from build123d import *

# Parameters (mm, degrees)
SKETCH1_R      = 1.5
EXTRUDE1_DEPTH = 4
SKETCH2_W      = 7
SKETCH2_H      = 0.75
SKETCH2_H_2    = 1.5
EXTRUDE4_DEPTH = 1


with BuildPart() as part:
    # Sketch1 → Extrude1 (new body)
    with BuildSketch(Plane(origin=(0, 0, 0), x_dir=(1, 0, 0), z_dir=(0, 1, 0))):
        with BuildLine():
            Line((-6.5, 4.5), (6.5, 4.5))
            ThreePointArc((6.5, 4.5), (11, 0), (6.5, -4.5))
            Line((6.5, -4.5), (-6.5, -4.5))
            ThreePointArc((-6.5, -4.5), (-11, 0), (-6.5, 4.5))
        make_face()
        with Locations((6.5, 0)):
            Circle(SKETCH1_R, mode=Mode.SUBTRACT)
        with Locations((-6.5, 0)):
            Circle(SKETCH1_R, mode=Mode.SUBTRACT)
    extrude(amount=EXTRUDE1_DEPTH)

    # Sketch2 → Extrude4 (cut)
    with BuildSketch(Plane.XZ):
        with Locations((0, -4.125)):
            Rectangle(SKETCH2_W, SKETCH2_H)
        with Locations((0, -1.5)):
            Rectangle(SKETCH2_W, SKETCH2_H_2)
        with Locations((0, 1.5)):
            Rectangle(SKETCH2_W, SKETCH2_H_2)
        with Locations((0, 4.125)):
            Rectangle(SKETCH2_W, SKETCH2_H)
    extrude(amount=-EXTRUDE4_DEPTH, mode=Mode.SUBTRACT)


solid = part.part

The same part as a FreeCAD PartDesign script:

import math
import FreeCAD as App
import Part
import Sketcher
from FreeCAD import Vector

doc = App.newDocument("Part")
body = doc.addObject("PartDesign::Body", "Body")

sketch1 = body.newObject("Sketcher::SketchObject", "Sketch")
sketch1.AttachmentSupport = (doc.getObject("XZ_Plane"), [""])
sketch1.MapMode = "FlatFace"
sketch1.addGeometry(Part.LineSegment(Vector(6.5, -4.5, 0), Vector(-6.5, -4.5, 0)), False)
sketch1.addGeometry(Part.ArcOfCircle(Part.Circle(Vector(-6.5, 0, 0), Vector(0, 0, 1), 4.5), math.radians(90), math.radians(270)), False)
sketch1.addGeometry(Part.LineSegment(Vector(-6.5, 4.5, 0), Vector(6.5, 4.5, 0)), False)
sketch1.addGeometry(Part.ArcOfCircle(Part.Circle(Vector(6.5, 0, 0), Vector(0, 0, 1), 4.5), math.radians(-90), math.radians(90)), False)
sketch1.addGeometry(Part.Circle(Vector(6.5, 0, 0), Vector(0, 0, 1), 1.5), False)
sketch1.addGeometry(Part.Circle(Vector(-6.5, 0, 0), Vector(0, 0, 1), 1.5), False)
sketch1.addConstraint(Sketcher.Constraint("Tangent", 0, 2, 1, 2))
sketch1.addConstraint(Sketcher.Constraint("Tangent", 1, 1, 2, 1))
sketch1.addConstraint(Sketcher.Constraint("Tangent", 2, 2, 3, 2))
sketch1.addConstraint(Sketcher.Constraint("Tangent", 3, 1, 0, 1))
sketch1.addConstraint(Sketcher.Constraint("Horizontal", 0))
sketch1.addConstraint(Sketcher.Constraint("Horizontal", 2))
sketch1.addConstraint(Sketcher.Constraint("Coincident", 4, 3, 3, 3))
sketch1.addConstraint(Sketcher.Constraint("Coincident", 5, 3, 1, 3))
sketch1.addConstraint(Sketcher.Constraint("Equal", 4, 5))
sketch1.addConstraint(Sketcher.Constraint("Symmetric", 1, 3, 3, 3, -1, 1))
sketch1.addConstraint(Sketcher.Constraint("Diameter", 4, 3.0))
sketch1.addConstraint(Sketcher.Constraint("Radius", 1, 4.5))
sketch1.addConstraint(Sketcher.Constraint("DistanceX", 0, 2, 0, 1, 13.0))
pad1 = body.newObject("PartDesign::Pad", "Pad")
pad1.Profile = sketch1
pad1.Length = 4
pad1.Reversed = True

sketch2 = body.newObject("Sketcher::SketchObject", "Sketch001")
sketch2.AttachmentSupport = (doc.getObject("XZ_Plane"), [""])
sketch2.MapMode = "FlatFace"
sketch2.addGeometry(Part.LineSegment(Vector(-3.5, -3.8, 0), Vector(-3.5, -4.5, 0)), False)
sketch2.addGeometry(Part.LineSegment(Vector(-3.5, -4.5, 0), Vector(3.5, -4.5, 0)), False)
sketch2.addGeometry(Part.LineSegment(Vector(3.5, -4.5, 0), Vector(3.5, -3.8, 0)), False)
sketch2.addGeometry(Part.LineSegment(Vector(3.5, -3.8, 0), Vector(-3.5, -3.8, 0)), False)
sketch2.addGeometry(Part.LineSegment(Vector(-3.5, -0.8, 0), Vector(-3.5, -2.2, 0)), False)
sketch2.addGeometry(Part.LineSegment(Vector(-3.5, -2.2, 0), Vector(3.5, -2.2, 0)), False)
sketch2.addGeometry(Part.LineSegment(Vector(3.5, -2.2, 0), Vector(3.5, -0.8, 0)), False)
sketch2.addGeometry(Part.LineSegment(Vector(3.5, -0.8, 0), Vector(-3.5, -0.8, 0)), False)
sketch2.addGeometry(Part.LineSegment(Vector(-3.5, 2.2, 0), Vector(-3.5, 0.8, 0)), False)
sketch2.addGeometry(Part.LineSegment(Vector(-3.5, 0.8, 0), Vector(3.5, 0.8, 0)), False)
sketch2.addGeometry(Part.LineSegment(Vector(3.5, 0.8, 0), Vector(3.5, 2.2, 0)), False)
sketch2.addGeometry(Part.LineSegment(Vector(3.5, 2.2, 0), Vector(-3.5, 2.2, 0)), False)
sketch2.addGeometry(Part.LineSegment(Vector(-3.5, 4.5, 0), Vector(-3.5, 3.8, 0)), False)
sketch2.addGeometry(Part.LineSegment(Vector(-3.5, 3.8, 0), Vector(3.5, 3.8, 0)), False)
sketch2.addGeometry(Part.LineSegment(Vector(3.5, 3.8, 0), Vector(3.5, 4.5, 0)), False)
sketch2.addGeometry(Part.LineSegment(Vector(3.5, 4.5, 0), Vector(-3.5, 4.5, 0)), False)
sketch2.addConstraint(Sketcher.Constraint("Coincident", 0, 2, 1, 1))
sketch2.addConstraint(Sketcher.Constraint("Coincident", 1, 2, 2, 1))
sketch2.addConstraint(Sketcher.Constraint("Coincident", 2, 2, 3, 1))
sketch2.addConstraint(Sketcher.Constraint("Coincident", 3, 2, 0, 1))
sketch2.addConstraint(Sketcher.Constraint("Coincident", 4, 2, 5, 1))
sketch2.addConstraint(Sketcher.Constraint("Coincident", 5, 2, 6, 1))
sketch2.addConstraint(Sketcher.Constraint("Coincident", 6, 2, 7, 1))
sketch2.addConstraint(Sketcher.Constraint("Coincident", 7, 2, 4, 1))
sketch2.addConstraint(Sketcher.Constraint("Coincident", 8, 2, 9, 1))
sketch2.addConstraint(Sketcher.Constraint("Coincident", 9, 2, 10, 1))
sketch2.addConstraint(Sketcher.Constraint("Coincident", 10, 2, 11, 1))
sketch2.addConstraint(Sketcher.Constraint("Coincident", 11, 2, 8, 1))
sketch2.addConstraint(Sketcher.Constraint("Coincident", 12, 2, 13, 1))
sketch2.addConstraint(Sketcher.Constraint("Coincident", 13, 2, 14, 1))
sketch2.addConstraint(Sketcher.Constraint("Coincident", 14, 2, 15, 1))
sketch2.addConstraint(Sketcher.Constraint("Coincident", 15, 2, 12, 1))
sketch2.addConstraint(Sketcher.Constraint("Vertical", 0))
sketch2.addConstraint(Sketcher.Constraint("Horizontal", 1))
sketch2.addConstraint(Sketcher.Constraint("Vertical", 2))
sketch2.addConstraint(Sketcher.Constraint("Horizontal", 3))
sketch2.addConstraint(Sketcher.Constraint("Vertical", 4))
sketch2.addConstraint(Sketcher.Constraint("Horizontal", 5))
sketch2.addConstraint(Sketcher.Constraint("Vertical", 6))
sketch2.addConstraint(Sketcher.Constraint("Horizontal", 7))
sketch2.addConstraint(Sketcher.Constraint("Vertical", 8))
sketch2.addConstraint(Sketcher.Constraint("Horizontal", 9))
sketch2.addConstraint(Sketcher.Constraint("Vertical", 10))
sketch2.addConstraint(Sketcher.Constraint("Horizontal", 11))
sketch2.addConstraint(Sketcher.Constraint("Vertical", 12))
sketch2.addConstraint(Sketcher.Constraint("Horizontal", 13))
sketch2.addConstraint(Sketcher.Constraint("Vertical", 14))
sketch2.addConstraint(Sketcher.Constraint("Horizontal", 15))
sketch2.addConstraint(Sketcher.Constraint("Symmetric", 6, 2, 8, 2, -1, 1))
sketch2.addConstraint(Sketcher.Constraint("Symmetric", 4, 2, 10, 2, -1, 1))
sketch2.addConstraint(Sketcher.Constraint("Symmetric", 2, 2, 12, 2, -1, 1))
sketch2.addConstraint(Sketcher.Constraint("Symmetric", 0, 2, 14, 2, -1, 1))
sketch2.addConstraint(Sketcher.Constraint("Vertical", 3, 2, 4, 2))
sketch2.addConstraint(Sketcher.Constraint("Vertical", 2, 2, 5, 2))
sketch2.addConstraint(Sketcher.Constraint("Vertical", 7, 2, 8, 2))
sketch2.addConstraint(Sketcher.Constraint("DistanceX", 1, 1, 1, 2, 7.0))
sketch2.addConstraint(Sketcher.Constraint("DistanceY", 4, 2, 4, 1, 1.5))
sketch2.addConstraint(Sketcher.Constraint("DistanceY", 2, 2, 6, 2, 3.0))
sketch2.addConstraint(Sketcher.Constraint("DistanceY", 4, 2, 8, 2, 3.0))
sketch2.addConstraint(Sketcher.Constraint("DistanceY", 0, 2, 0, 1, 0.75))
pocket1 = body.newObject("PartDesign::Pocket", "Pocket")
pocket1.Profile = sketch2
pocket1.Length = 1

doc.recompute()
